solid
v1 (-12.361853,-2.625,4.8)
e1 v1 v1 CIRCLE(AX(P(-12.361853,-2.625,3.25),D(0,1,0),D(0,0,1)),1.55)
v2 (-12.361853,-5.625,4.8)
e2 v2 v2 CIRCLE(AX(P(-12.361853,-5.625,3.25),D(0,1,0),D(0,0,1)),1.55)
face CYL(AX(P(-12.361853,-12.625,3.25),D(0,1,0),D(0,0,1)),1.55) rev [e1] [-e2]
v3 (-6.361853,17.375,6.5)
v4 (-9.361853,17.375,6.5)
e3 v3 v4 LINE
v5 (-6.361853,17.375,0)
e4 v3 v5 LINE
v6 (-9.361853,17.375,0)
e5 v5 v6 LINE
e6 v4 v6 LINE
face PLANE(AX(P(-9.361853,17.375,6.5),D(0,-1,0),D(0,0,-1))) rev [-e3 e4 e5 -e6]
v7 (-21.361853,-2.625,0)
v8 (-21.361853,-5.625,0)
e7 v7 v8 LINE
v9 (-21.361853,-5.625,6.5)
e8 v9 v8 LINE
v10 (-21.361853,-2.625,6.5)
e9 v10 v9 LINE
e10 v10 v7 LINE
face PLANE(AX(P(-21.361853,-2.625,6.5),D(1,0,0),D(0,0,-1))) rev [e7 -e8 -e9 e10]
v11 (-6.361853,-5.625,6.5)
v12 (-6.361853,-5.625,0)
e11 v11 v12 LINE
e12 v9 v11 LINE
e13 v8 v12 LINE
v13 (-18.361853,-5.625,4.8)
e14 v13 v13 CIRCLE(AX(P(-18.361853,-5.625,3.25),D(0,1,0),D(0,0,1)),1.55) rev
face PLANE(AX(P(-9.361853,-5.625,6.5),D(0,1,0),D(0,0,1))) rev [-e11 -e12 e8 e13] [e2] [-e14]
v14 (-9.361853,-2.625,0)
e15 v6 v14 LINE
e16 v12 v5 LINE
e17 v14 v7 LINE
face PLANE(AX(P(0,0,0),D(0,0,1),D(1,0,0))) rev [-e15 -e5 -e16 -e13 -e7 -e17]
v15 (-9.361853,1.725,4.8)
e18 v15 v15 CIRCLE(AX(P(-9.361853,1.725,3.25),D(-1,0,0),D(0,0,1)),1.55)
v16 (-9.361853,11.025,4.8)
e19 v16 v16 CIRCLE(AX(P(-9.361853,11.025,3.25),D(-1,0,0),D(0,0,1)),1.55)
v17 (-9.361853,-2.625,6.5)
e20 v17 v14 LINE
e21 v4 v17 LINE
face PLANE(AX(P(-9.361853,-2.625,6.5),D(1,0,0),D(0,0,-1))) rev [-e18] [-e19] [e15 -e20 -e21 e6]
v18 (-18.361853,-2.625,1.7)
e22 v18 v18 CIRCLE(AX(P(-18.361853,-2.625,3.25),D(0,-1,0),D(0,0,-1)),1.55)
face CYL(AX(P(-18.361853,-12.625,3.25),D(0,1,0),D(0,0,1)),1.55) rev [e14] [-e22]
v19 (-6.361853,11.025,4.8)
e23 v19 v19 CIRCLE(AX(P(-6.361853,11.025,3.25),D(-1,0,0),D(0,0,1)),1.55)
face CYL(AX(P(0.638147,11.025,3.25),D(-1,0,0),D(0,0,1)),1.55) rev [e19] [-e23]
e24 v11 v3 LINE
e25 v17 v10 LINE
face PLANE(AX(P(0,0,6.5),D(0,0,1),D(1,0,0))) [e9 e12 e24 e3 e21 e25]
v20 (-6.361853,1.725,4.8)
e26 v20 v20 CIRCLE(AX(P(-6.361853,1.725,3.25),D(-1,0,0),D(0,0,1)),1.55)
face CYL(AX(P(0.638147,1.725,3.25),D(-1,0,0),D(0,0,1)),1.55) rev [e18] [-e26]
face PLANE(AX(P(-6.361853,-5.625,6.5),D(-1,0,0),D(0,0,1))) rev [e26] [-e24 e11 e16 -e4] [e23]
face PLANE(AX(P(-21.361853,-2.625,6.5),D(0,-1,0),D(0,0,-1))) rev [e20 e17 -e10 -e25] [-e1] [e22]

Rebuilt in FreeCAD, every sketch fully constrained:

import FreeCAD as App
import Part
import Sketcher
from FreeCAD import Vector
Q = App.Units.Quantity

doc = App.newDocument("Part")
params = doc.addObject("Spreadsheet::Sheet", "Params")
for row, (alias, value) in enumerate([
    ("sketch1_width", "12 mm"),
    ("sketch1_width2", "15 mm"),
    ("sketch1_height", "23 mm"),
    ("pad1_length", "6.5 mm"),
    ("sketch2_diameter", "3.1 mm"),
    ("pocket1_length", "10 mm"),
    ("sketch3_diameter", "3.1 mm"),
    ("pocket2_length", "10 mm"),
], start=1):
    params.set(f"A{row}", alias)
    params.set(f"B{row}", "=" + value)
    params.setAlias(f"B{row}", alias)

body = doc.addObject("PartDesign::Body", "Body")

sketch1 = doc.addObject("Sketcher::SketchObject", "Sketch")
body.addObject(sketch1)
sketch1.AttachmentSupport = (doc.XY_Plane, [""])
sketch1.MapMode = "FlatFace"
sketch1.addGeometry([
    Part.LineSegment(Vector(-9.4, -2.6, 0), Vector(-21.4, -2.6, 0)),
    Part.LineSegment(Vector(-21.4, -2.6, 0), Vector(-21.4, -5.6, 0)),
    Part.LineSegment(Vector(-21.4, -5.6, 0), Vector(-6.4, -5.6, 0)),
    Part.LineSegment(Vector(-6.4, -5.6, 0), Vector(-6.4, 17.4, 0)),
    Part.LineSegment(Vector(-6.4, 17.4, 0), Vector(-9.4, 17.4, 0)),
    Part.LineSegment(Vector(-9.4, 17.4, 0), Vector(-9.4, -2.6, 0)),
], False)
sketch1.addConstraint([
    Sketcher.Constraint("Coincident", 0, 2, 1, 1),
    Sketcher.Constraint("Coincident", 1, 2, 2, 1),
    Sketcher.Constraint("Coincident", 2, 2, 3, 1),
    Sketcher.Constraint("Coincident", 3, 2, 4, 1),
    Sketcher.Constraint("Coincident", 4, 2, 5, 1),
    Sketcher.Constraint("Coincident", 5, 2, 0, 1),
    Sketcher.Constraint("Horizontal", 0),
    Sketcher.Constraint("Vertical", 1),
    Sketcher.Constraint("Horizontal", 2),
    Sketcher.Constraint("Vertical", 3),
    Sketcher.Constraint("Horizontal", 4),
    Sketcher.Constraint("Vertical", 5),
    Sketcher.Constraint("Equal", 4, 1),
    Sketcher.Constraint("DistanceX", 0, 2, 0, 1, Q("12 mm")),
    Sketcher.Constraint("DistanceX", 2, 1, 2, 2, Q("15 mm")),
    Sketcher.Constraint("DistanceY", 3, 1, 3, 2, Q("23 mm")),
    Sketcher.Constraint("DistanceY", 0, 2, -1, 1, Q("2.625 mm")),
    Sketcher.Constraint("DistanceX", 0, 2, -1, 1, Q("21.361853 mm")),
])
sketch1.setExpression("Constraints[13]", "Params.sketch1_width")
sketch1.setExpression("Constraints[14]", "Params.sketch1_width2")
sketch1.setExpression("Constraints[15]", "Params.sketch1_height")
pad1 = doc.addObject("PartDesign::Pad", "Pad")
body.addObject(pad1)
pad1.Profile = sketch1
pad1.setExpression("Length", "Params.pad1_length")

sketch2 = doc.addObject("Sketcher::SketchObject", "Sketch001")
body.addObject(sketch2)
sketch2.AttachmentSupport = (doc.XZ_Plane, [""])
sketch2.MapMode = "FlatFace"
sketch2.AttachmentOffset = App.Placement(Vector(0, 0, 2.625), App.Rotation())
sketch2.addGeometry([
    Part.Circle(Vector(-12.4, 3.2, 0), Vector(0, 0, 1), 1.6),
    Part.Circle(Vector(-18.4, 3.2, 0), Vector(0, 0, 1), 1.6),
], False)
sketch2.addConstraint([
    Sketcher.Constraint("Equal", 0, 1),
    Sketcher.Constraint("Horizontal", 0, 3, 1, 3),
    Sketcher.Constraint("Diameter", 0, Q("3.1 mm")),
    Sketcher.Constraint("DistanceX", 1, 3, 0, 3, Q("6 mm")),
    Sketcher.Constraint("DistanceY", -1, 1, 0, 3, Q("3.25 mm")),
    Sketcher.Constraint("DistanceX", 0, 3, -1, 1, Q("12.361853 mm")),
])
sketch2.setExpression("Constraints[2]", "Params.sketch2_diameter")
pocket1 = doc.addObject("PartDesign::Pocket", "Pocket")
body.addObject(pocket1)
pocket1.Profile = sketch2
pocket1.setExpression("Length", "Params.pocket1_length")
pocket1.Reversed = True

sketch3 = doc.addObject("Sketcher::SketchObject", "Sketch002")
body.addObject(sketch3)
sketch3.AttachmentSupport = (doc.YZ_Plane, [""])
sketch3.MapMode = "FlatFace"
sketch3.AttachmentOffset = App.Placement(Vector(0, 0, -9.361853), App.Rotation())
sketch3.addGeometry([
    Part.Circle(Vector(1.7, 3.2, 0), Vector(0, 0, 1), 1.6),
    Part.Circle(Vector(11, 3.2, 0), Vector(0, 0, 1), 1.6),
], False)
sketch3.addConstraint([
    Sketcher.Constraint("Equal", 0, 1),
    Sketcher.Constraint("Horizontal", 0, 3, 1, 3),
    Sketcher.Constraint("Diameter", 0, Q("3.1 mm")),
    Sketcher.Constraint("DistanceX", 0, 3, 1, 3, Q("9.3 mm")),
    Sketcher.Constraint("DistanceY", -1, 1, 0, 3, Q("3.25 mm")),
    Sketcher.Constraint("DistanceX", -1, 1, 0, 3, Q("1.725 mm")),
])
sketch3.setExpression("Constraints[2]", "Params.sketch3_diameter")
pocket2 = doc.addObject("PartDesign::Pocket", "Pocket001")
body.addObject(pocket2)
pocket2.Profile = sketch3
pocket2.setExpression("Length", "Params.pocket2_length")
pocket2.Reversed = True

doc.recompute()
